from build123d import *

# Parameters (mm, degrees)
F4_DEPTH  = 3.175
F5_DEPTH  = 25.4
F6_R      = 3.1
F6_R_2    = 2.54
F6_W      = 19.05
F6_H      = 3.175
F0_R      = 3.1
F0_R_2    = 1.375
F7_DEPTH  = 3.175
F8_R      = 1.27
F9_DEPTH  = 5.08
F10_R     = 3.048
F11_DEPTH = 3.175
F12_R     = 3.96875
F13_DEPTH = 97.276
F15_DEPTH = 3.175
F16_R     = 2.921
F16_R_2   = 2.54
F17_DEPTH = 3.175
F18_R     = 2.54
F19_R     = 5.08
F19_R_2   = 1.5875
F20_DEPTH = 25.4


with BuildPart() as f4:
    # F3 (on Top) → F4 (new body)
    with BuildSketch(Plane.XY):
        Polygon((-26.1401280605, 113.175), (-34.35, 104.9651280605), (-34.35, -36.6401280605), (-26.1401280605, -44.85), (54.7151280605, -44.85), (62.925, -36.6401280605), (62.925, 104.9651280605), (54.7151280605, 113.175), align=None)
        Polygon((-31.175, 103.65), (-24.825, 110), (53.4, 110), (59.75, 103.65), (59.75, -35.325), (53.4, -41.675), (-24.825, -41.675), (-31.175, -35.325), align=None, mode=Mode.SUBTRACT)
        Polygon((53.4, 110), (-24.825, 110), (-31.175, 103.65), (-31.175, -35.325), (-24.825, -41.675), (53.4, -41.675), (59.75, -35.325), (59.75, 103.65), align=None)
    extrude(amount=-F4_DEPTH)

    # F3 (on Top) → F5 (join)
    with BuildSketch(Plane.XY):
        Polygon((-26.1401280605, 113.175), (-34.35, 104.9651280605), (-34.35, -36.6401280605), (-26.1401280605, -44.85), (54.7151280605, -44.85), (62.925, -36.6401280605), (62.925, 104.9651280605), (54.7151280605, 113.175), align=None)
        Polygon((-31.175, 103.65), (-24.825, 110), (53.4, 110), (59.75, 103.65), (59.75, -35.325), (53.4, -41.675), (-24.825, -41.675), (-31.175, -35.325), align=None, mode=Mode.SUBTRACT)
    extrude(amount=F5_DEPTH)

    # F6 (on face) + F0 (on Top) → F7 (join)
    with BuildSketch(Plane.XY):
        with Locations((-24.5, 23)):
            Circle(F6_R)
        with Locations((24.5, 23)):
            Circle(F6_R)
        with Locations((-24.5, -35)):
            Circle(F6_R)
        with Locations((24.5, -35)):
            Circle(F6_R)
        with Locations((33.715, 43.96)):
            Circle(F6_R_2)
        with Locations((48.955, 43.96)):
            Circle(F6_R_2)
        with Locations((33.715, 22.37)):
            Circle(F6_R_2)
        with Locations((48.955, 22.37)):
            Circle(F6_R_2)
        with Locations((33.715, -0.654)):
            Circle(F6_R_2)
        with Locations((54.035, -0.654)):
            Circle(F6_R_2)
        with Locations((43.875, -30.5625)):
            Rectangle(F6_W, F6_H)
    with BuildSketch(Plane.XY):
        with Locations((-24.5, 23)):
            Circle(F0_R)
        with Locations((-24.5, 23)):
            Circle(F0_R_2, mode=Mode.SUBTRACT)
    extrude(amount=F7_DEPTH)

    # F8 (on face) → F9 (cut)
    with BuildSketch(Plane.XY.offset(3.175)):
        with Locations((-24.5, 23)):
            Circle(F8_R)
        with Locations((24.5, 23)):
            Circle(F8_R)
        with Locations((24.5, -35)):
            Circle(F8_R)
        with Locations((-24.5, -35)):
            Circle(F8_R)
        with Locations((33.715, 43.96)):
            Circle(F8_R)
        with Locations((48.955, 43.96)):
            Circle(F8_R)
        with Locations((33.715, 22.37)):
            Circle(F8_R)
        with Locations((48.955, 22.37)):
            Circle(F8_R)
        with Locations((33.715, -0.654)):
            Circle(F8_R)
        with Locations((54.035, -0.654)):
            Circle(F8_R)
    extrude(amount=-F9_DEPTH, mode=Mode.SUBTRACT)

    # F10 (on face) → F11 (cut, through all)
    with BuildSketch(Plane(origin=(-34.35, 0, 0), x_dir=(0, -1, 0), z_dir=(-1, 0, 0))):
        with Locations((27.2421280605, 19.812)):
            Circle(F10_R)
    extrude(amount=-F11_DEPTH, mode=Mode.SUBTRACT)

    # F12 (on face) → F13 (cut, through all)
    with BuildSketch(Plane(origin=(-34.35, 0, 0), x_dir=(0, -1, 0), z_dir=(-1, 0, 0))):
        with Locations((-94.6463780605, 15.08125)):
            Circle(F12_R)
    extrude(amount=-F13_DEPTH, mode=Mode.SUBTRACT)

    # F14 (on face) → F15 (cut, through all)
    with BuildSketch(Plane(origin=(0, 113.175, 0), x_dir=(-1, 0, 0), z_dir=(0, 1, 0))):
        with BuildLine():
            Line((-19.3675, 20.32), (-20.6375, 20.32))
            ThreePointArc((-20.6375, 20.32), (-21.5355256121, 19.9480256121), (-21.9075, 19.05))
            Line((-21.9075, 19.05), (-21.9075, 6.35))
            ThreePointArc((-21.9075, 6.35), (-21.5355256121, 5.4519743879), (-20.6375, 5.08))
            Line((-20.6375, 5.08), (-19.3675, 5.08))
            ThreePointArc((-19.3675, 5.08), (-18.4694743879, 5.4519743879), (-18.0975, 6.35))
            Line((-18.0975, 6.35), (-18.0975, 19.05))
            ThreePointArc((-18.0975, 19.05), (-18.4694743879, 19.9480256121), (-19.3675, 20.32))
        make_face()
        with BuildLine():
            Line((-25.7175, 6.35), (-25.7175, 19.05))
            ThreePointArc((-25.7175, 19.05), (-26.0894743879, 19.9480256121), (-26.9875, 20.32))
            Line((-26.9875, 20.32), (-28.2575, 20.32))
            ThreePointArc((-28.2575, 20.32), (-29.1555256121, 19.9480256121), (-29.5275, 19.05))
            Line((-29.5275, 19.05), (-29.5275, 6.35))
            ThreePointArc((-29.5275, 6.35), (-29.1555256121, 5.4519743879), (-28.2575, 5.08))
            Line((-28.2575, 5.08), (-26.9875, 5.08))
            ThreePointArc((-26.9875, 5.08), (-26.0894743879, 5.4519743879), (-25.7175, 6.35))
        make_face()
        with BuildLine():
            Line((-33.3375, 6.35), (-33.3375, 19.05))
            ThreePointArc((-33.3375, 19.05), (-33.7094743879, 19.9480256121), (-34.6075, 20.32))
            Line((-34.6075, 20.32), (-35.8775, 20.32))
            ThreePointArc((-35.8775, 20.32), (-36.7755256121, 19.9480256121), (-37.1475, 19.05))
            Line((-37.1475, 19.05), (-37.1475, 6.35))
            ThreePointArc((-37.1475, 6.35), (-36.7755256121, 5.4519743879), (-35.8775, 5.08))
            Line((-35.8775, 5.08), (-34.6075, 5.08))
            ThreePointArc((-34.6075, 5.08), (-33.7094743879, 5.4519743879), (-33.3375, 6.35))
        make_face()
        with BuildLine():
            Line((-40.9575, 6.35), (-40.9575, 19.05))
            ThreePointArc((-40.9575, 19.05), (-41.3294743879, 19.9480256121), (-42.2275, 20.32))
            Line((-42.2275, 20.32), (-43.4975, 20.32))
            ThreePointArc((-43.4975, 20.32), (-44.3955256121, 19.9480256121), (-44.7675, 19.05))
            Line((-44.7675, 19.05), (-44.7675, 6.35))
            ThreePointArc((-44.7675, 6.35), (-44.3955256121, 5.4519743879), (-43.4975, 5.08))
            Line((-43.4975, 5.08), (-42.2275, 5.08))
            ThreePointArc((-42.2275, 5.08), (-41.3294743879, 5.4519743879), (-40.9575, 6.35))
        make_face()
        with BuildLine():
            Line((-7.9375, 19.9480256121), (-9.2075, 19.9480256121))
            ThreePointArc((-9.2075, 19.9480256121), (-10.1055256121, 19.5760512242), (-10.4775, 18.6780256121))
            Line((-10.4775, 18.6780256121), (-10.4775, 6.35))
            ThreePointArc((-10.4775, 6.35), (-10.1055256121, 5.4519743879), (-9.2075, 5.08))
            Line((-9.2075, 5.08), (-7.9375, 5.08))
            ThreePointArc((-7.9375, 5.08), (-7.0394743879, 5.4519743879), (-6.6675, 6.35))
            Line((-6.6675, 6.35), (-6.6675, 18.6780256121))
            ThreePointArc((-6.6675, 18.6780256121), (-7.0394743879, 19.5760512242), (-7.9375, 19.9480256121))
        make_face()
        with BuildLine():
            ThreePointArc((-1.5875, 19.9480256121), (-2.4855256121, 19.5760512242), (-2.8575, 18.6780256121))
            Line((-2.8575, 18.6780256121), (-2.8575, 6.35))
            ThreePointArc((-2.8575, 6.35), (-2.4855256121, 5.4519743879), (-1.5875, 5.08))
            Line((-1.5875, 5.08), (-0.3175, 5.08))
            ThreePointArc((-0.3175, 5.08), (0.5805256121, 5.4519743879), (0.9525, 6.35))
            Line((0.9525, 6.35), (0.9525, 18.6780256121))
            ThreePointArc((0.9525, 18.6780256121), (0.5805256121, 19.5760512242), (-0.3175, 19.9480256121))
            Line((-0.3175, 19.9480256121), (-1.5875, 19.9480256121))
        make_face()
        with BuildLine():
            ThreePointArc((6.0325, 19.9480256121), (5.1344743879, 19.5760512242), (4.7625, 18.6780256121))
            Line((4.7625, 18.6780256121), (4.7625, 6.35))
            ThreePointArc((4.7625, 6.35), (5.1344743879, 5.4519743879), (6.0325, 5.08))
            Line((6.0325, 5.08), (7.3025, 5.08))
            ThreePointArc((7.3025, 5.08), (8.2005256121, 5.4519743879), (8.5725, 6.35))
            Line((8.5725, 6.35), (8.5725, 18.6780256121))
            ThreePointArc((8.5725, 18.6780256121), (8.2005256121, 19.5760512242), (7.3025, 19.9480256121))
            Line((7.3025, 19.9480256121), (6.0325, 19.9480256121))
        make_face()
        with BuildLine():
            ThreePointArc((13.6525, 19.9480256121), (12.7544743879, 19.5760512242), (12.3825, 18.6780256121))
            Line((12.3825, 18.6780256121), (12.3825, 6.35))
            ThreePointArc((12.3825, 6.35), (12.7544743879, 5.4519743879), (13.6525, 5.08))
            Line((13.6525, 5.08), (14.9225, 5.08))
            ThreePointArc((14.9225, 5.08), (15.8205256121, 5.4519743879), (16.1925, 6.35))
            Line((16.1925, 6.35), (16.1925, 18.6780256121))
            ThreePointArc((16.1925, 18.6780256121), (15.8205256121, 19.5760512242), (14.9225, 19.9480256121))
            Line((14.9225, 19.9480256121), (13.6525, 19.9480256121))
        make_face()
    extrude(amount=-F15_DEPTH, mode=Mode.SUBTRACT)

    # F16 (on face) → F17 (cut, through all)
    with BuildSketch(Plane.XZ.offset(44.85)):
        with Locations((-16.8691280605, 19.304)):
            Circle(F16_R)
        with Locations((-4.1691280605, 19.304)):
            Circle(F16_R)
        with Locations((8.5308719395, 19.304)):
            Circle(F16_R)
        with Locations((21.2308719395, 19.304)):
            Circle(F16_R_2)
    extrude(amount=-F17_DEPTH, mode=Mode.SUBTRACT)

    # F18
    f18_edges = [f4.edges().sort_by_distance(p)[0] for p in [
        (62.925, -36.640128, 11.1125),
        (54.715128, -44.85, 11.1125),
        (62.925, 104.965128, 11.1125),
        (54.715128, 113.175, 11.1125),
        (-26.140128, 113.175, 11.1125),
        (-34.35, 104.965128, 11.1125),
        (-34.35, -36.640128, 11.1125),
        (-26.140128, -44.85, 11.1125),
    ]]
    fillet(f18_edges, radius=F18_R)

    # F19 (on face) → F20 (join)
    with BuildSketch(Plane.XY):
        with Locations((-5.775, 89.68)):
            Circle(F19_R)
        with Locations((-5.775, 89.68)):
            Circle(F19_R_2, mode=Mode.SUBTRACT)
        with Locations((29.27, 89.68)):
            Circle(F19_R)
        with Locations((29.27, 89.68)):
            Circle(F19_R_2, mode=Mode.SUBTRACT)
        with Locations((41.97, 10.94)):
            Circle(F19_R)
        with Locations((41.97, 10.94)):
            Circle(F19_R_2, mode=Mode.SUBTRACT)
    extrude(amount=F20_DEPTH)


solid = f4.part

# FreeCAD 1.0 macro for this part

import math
import FreeCAD as App
import Part
import Sketcher
from FreeCAD import Vector
Q = App.Units.Quantity


def edges_at(feature, points):
    """Names of the edges that pass closest to the given points."""
    edges = feature.Shape.Edges
    near = lambda p: min(range(len(edges)), key=lambda i: edges[i].distToShape(Part.Vertex(*p))[0])
    return sorted({f"Edge{near(p) + 1}" for p in points})

doc = App.newDocument("Part")
body = doc.addObject("PartDesign::Body", "Body")

# Sketch on XY plane
sketch1 = body.newObject("Sketcher::SketchObject", "Sketch")
sketch1.AttachmentSupport = (doc.getObject("XY_Plane"), [""])
sketch1.MapMode = "FlatFace"
sketch1.addGeometry([
    Part.LineSegment(Vector(-26, 113, 0), Vector(-34, 105, 0)),  # 0
    Part.LineSegment(Vector(-34, 105, 0), Vector(-34, -37, 0)),  # 1
    Part.LineSegment(Vector(-34, -37, 0), Vector(-26, -45, 0)),  # 2
    Part.LineSegment(Vector(-26, -45, 0), Vector(55, -45, 0)),  # 3
    Part.LineSegment(Vector(55, -45, 0), Vector(63, -37, 0)),  # 4
    Part.LineSegment(Vector(63, -37, 0), Vector(63, 105, 0)),  # 5
    Part.LineSegment(Vector(63, 105, 0), Vector(55, 113, 0)),  # 6
    Part.LineSegment(Vector(55, 113, 0), Vector(-26, 113, 0)),  # 7
], False)
sketch1.addConstraint([
    Sketcher.Constraint("Coincident", 0, 2, 1, 1),
    Sketcher.Constraint("Coincident", 1, 2, 2, 1),
    Sketcher.Constraint("Coincident", 2, 2, 3, 1),
    Sketcher.Constraint("Coincident", 3, 2, 4, 1),
    Sketcher.Constraint("Coincident", 4, 2, 5, 1),
    Sketcher.Constraint("Coincident", 5, 2, 6, 1),
    Sketcher.Constraint("Coincident", 6, 2, 7, 1),
    Sketcher.Constraint("Coincident", 7, 2, 0, 1),
    Sketcher.Constraint("Vertical", 1),
    Sketcher.Constraint("Horizontal", 3),
    Sketcher.Constraint("Vertical", 5),
    Sketcher.Constraint("Horizontal", 7),
    Sketcher.Constraint("Perpendicular", 0, 2),
    Sketcher.Constraint("Perpendicular", 2, 4),
    Sketcher.Constraint("Perpendicular", 4, 6),
    Sketcher.Constraint("Horizontal", 1, 2, 4, 2),
    Sketcher.Constraint("Horizontal", 0, 2, 5, 2),
    Sketcher.Constraint("Vertical", 3, 2, 6, 2),
    Sketcher.Constraint("Vertical", 2, 2, 7, 2),
    Sketcher.Constraint("DistanceX", 0, 2, -1, 1, Q("34.35 mm")),
    Sketcher.Constraint("DistanceY", 2, 2, -1, 1, Q("44.85 mm")),
    Sketcher.Constraint("DistanceX", -1, 1, 4, 2, Q("62.925 mm")),
    Sketcher.Constraint("DistanceY", -1, 1, 6, 2, Q("113.175 mm")),
    Sketcher.Constraint("DistanceX", 3, 1, 3, 2, Q("80.855256 mm")),
])
pad1 = body.newObject("PartDesign::Pad", "Pad")
pad1.Profile = sketch1
pad1.Length = Q("0.125 in")
pad1.Reversed = True

# Sketch on XY plane
sketch2 = body.newObject("Sketcher::SketchObject", "Sketch001")
sketch2.AttachmentSupport = (doc.getObject("XY_Plane"), [""])
sketch2.MapMode = "FlatFace"
sketch2.addGeometry([
    Part.LineSegment(Vector(-26, 113, 0), Vector(-34, 105, 0)),  # 0
    Part.LineSegment(Vector(-34, 105, 0), Vector(-34, -37, 0)),  # 1
    Part.LineSegment(Vector(-34, -37, 0), Vector(-26, -45, 0)),  # 2
    Part.LineSegment(Vector(-26, -45, 0), Vector(55, -45, 0)),  # 3
    Part.LineSegment(Vector(55, -45, 0), Vector(63, -37, 0)),  # 4
    Part.LineSegment(Vector(63, -37, 0), Vector(63, 105, 0)),  # 5
    Part.LineSegment(Vector(63, 105, 0), Vector(55, 113, 0)),  # 6
    Part.LineSegment(Vector(55, 113, 0), Vector(-26, 113, 0)),  # 7
    Part.LineSegment(Vector(-31, -35, 0), Vector(-31, 104, 0)),  # 8
    Part.LineSegment(Vector(-31, 104, 0), Vector(-25, 110, 0)),  # 9
    Part.LineSegment(Vector(-25, 110, 0), Vector(53, 110, 0)),  # 10
    Part.LineSegment(Vector(53, 110, 0), Vector(60, 104, 0)),  # 11
    Part.LineSegment(Vector(60, 104, 0), Vector(60, -35, 0)),  # 12
    Part.LineSegment(Vector(60, -35, 0), Vector(53, -42, 0)),  # 13
    Part.LineSegment(Vector(53, -42, 0), Vector(-25, -42, 0)),  # 14
    Part.LineSegment(Vector(-25, -42, 0), Vector(-31, -35, 0)),  # 15
], False)
sketch2.addConstraint([
    Sketcher.Constraint("Coincident", 0, 2, 1, 1),
    Sketcher.Constraint("Coincident", 1, 2, 2, 1),
    Sketcher.Constraint("Coincident", 2, 2, 3, 1),
    Sketcher.Constraint("Coincident", 3, 2, 4, 1),
    Sketcher.Constraint("Coincident", 4, 2, 5, 1),
    Sketcher.Constraint("Coincident", 5, 2, 6, 1),
    Sketcher.Constraint("Coincident", 6, 2, 7, 1),
    Sketcher.Constraint("Coincident", 7, 2, 0, 1),
    Sketcher.Constraint("Coincident", 8, 2, 9, 1),
    Sketcher.Constraint("Coincident", 9, 2, 10, 1),
    Sketcher.Constraint("Coincident", 10, 2, 11, 1),
    Sketcher.Constraint("Coincident", 11, 2, 12, 1),
    Sketcher.Constraint("Coincident", 12, 2, 13, 1),
    Sketcher.Constraint("Coincident", 13, 2, 14, 1),
    Sketcher.Constraint("Coincident", 14, 2, 15, 1),
    Sketcher.Constraint("Coincident", 15, 2, 8, 1),
    Sketcher.Constraint("Vertical", 1),
    Sketcher.Constraint("Horizontal", 3),
    Sketcher.Constraint("Vertical", 5),
    Sketcher.Constraint("Horizontal", 7),
    Sketcher.Constraint("Vertical", 8),
    Sketcher.Constraint("Horizontal", 10),
    Sketcher.Constraint("Vertical", 12),
    Sketcher.Constraint("Horizontal", 14),
    Sketcher.Constraint("Perpendicular", 0, 2),
    Sketcher.Constraint("Perpendicular", 2, 4),
    Sketcher.Constraint("Perpendicular", 4, 6),
    Sketcher.Constraint("Perpendicular", 6, 9),
    Sketcher.Constraint("Perpendicular", 9, 11),
    Sketcher.Constraint("Perpendicular", 11, 13),
    Sketcher.Constraint("Perpendicular", 13, 15),
    Sketcher.Constraint("Horizontal", 1, 2, 4, 2),
    Sketcher.Constraint("Horizontal", 0, 2, 5, 2),
    Sketcher.Constraint("Horizontal", 8, 2, 11, 2),
    Sketcher.Constraint("Horizontal", 12, 2, 15, 2),
    Sketcher.Constraint("Vertical", 3, 2, 6, 2),
    Sketcher.Constraint("Vertical", 2, 2, 7, 2),
    Sketcher.Constraint("Vertical", 10, 2, 13, 2),
    Sketcher.Constraint("DistanceX", 8, 2, 9, 2, Q("0.25 in")),
    Sketcher.Constraint("DistanceX", 0, 2, 8, 2, Q("0.125 in")),
    Sketcher.Constraint("DistanceY", 8, 2, 7, 2, Q("0.375 in")),
    Sketcher.Constraint("DistanceX", 10, 2, 5, 2, Q("0.375 in")),
    Sketcher.Constraint("DistanceY", 3, 2, 12, 2, Q("0.375 in")),
    Sketcher.Constraint("DistanceX", 10, 1, 10, 2, Q("78.225 mm")),
    Sketcher.Constraint("DistanceY", 8, 1, 8, 2, Q("138.975 mm")),
    Sketcher.Constraint("DistanceX", 0, 2, -1, 1, Q("34.35 mm")),
    Sketcher.Constraint("DistanceY", 2, 2, -1, 1, Q("44.85 mm")),
    Sketcher.Constraint("DistanceX", 3, 1, 3, 2, Q("80.855256 mm")),
])
pad2 = body.newObject("PartDesign::Pad", "Pad001")
pad2.Profile = sketch2
pad2.Length = Q("1 in")

# Sketch on XY plane
sketch3 = body.newObject("Sketcher::SketchObject", "Sketch002")
sketch3.AttachmentSupport = (doc.getObject("XY_Plane"), [""])
sketch3.MapMode = "FlatFace"
sketch3.addGeometry([
    Part.Circle(Vector(-24.5, 23, 0), Vector(0, 0, 1), 3.1),  # 0
    Part.Circle(Vector(24.5, 23, 0), Vector(0, 0, 1), 3.1),  # 1
    Part.Circle(Vector(-24.5, -35, 0), Vector(0, 0, 1), 3.1),  # 2
    Part.Circle(Vector(24.5, -35, 0), Vector(0, 0, 1), 3.1),  # 3
    Part.Circle(Vector(33.7, 44, 0), Vector(0, 0, 1), 2.5),  # 4
    Part.Circle(Vector(49, 44, 0), Vector(0, 0, 1), 2.5),  # 5
    Part.Circle(Vector(33.7, 22.4, 0), Vector(0, 0, 1), 2.5),  # 6
    Part.Circle(Vector(49, 22.4, 0), Vector(0, 0, 1), 2.5),  # 7
    Part.Circle(Vector(33.7, -0.7, 0), Vector(0, 0, 1), 2.5),  # 8
    Part.Circle(Vector(54, -0.7, 0), Vector(0, 0, 1), 2.5),  # 9
    Part.LineSegment(Vector(34.4, -29, 0), Vector(34.4, -32.1, 0)),  # 10
    Part.LineSegment(Vector(34.4, -32.1, 0), Vector(53.4, -32.1, 0)),  # 11
    Part.LineSegment(Vector(53.4, -32.1, 0), Vector(53.4, -29, 0)),  # 12
    Part.LineSegment(Vector(53.4, -29, 0), Vector(34.4, -29, 0)),  # 13
], False)
sketch3.addConstraint([
    Sketcher.Constraint("Coincident", 10, 2, 11, 1),
    Sketcher.Constraint("Coincident", 11, 2, 12, 1),
    Sketcher.Constraint("Coincident", 12, 2, 13, 1),
    Sketcher.Constraint("Coincident", 13, 2, 10, 1),
    Sketcher.Constraint("Vertical", 10),
    Sketcher.Constraint("Horizontal", 11),
    Sketcher.Constraint("Vertical", 12),
    Sketcher.Constraint("Horizontal", 13),
    Sketcher.Constraint("Equal", 0, 1),
    Sketcher.Constraint("Equal", 1, 2),
    Sketcher.Constraint("Equal", 2, 3),
    Sketcher.Constraint("Equal", 4, 5),
    Sketcher.Constraint("Equal", 5, 6),
    Sketcher.Constraint("Equal", 6, 7),
    Sketcher.Constraint("Equal", 7, 8),
    Sketcher.Constraint("Equal", 8, 9),
    Sketcher.Constraint("Symmetric", 0, 3, 1, 3, -2),
    Sketcher.Constraint("Symmetric", 2, 3, 3, 3, -2),
    Sketcher.Constraint("Horizontal", 4, 3, 5, 3),
    Sketcher.Constraint("Horizontal", 6, 3, 7, 3),
    Sketcher.Constraint("Horizontal", 8, 3, 9, 3),
    Sketcher.Constraint("Vertical", 0, 3, 2, 3),
    Sketcher.Constraint("Vertical", 4, 3, 6, 3),
    Sketcher.Constraint("Vertical", 5, 3, 7, 3),
    Sketcher.Constraint("Vertical", 6, 3, 8, 3),
    Sketcher.Constraint("Diameter", 4, Q("0.2 in")),
    Sketcher.Constraint("DistanceX", 11, 1, 11, 2, Q("0.75 in")),
    Sketcher.Constraint("DistanceX", 4, 3, 5, 3, Q("0.6 in")),
    Sketcher.Constraint("DistanceX", 8, 3, 9, 3, Q("0.8 in")),
    Sketcher.Constraint("Diameter", 0, Q("6.2 mm")),
    Sketcher.Constraint("DistanceY", 10, 2, 10, 1, Q("0.125 in")),
    Sketcher.Constraint("DistanceY", 6, 3, 4, 3, Q("0.85 in")),
    Sketcher.Constraint("DistanceY", 10, 2, 8, 3, Q("1.24 in")),
    Sketcher.Constraint("DistanceX", 8, 3, 10, 2, Q("0.025 in")),
    Sketcher.Constraint("DistanceX", 0, 3, -1, 1, Q("24.5 mm")),
    Sketcher.Constraint("DistanceY", -1, 1, 0, 3, Q("23 mm")),
    Sketcher.Constraint("DistanceY", 2, 3, -1, 1, Q("35 mm")),
    Sketcher.Constraint("DistanceX", -1, 1, 4, 3, Q("33.715 mm")),
    Sketcher.Constraint("DistanceY", -1, 1, 4, 3, Q("43.96 mm")),
    Sketcher.Constraint("DistanceY", 8, 3, -1, 1, Q("0.654 mm")),
])
pad3 = body.newObject("PartDesign::Pad", "Pad002")
pad3.Profile = sketch3
pad3.Length = Q("0.125 in")

# Sketch on XY plane
sketch4 = body.newObject("Sketcher::SketchObject", "Sketch003")
sketch4.AttachmentSupport = (doc.getObject("XY_Plane"), [""])
sketch4.MapMode = "FlatFace"
sketch4.AttachmentOffset = App.Placement(Vector(0, 0, 0.125 * 25.4), App.Rotation())
sketch4.addGeometry([
    Part.Circle(Vector(-24.5, 23, 0), Vector(0, 0, 1), 1.3),  # 0
    Part.Circle(Vector(24.5, 23, 0), Vector(0, 0, 1), 1.3),  # 1
    Part.Circle(Vector(24.5, -35, 0), Vector(0, 0, 1), 1.3),  # 2
    Part.Circle(Vector(-24.5, -35, 0), Vector(0, 0, 1), 1.3),  # 3
    Part.Circle(Vector(33.7, 44, 0), Vector(0, 0, 1), 1.3),  # 4
    Part.Circle(Vector(49, 44, 0), Vector(0, 0, 1), 1.3),  # 5
    Part.Circle(Vector(33.7, 22.4, 0), Vector(0, 0, 1), 1.3),  # 6
    Part.Circle(Vector(49, 22.4, 0), Vector(0, 0, 1), 1.3),  # 7
    Part.Circle(Vector(33.7, -0.7, 0), Vector(0, 0, 1), 1.3),  # 8
    Part.Circle(Vector(54, -0.7, 0), Vector(0, 0, 1), 1.3),  # 9
], False)
sketch4.addConstraint([
    Sketcher.Constraint("Equal", 0, 1),
    Sketcher.Constraint("Equal", 1, 2),
    Sketcher.Constraint("Equal", 2, 3),
    Sketcher.Constraint("Equal", 3, 4),
    Sketcher.Constraint("Equal", 4, 5),
    Sketcher.Constraint("Equal", 5, 6),
    Sketcher.Constraint("Equal", 6, 7),
    Sketcher.Constraint("Equal", 7, 8),
    Sketcher.Constraint("Equal", 8, 9),
    Sketcher.Constraint("Symmetric", 0, 3, 1, 3, -2),
    Sketcher.Constraint("Symmetric", 2, 3, 3, 3, -2),
    Sketcher.Constraint("Horizontal", 4, 3, 5, 3),
    Sketcher.Constraint("Horizontal", 6, 3, 7, 3),
    Sketcher.Constraint("Horizontal", 8, 3, 9, 3),
    Sketcher.Constraint("Vertical", 1, 3, 2, 3),
    Sketcher.Constraint("Vertical", 4, 3, 6, 3),
    Sketcher.Constraint("Vertical", 5, 3, 7, 3),
    Sketcher.Constraint("Vertical", 6, 3, 8, 3),
    Sketcher.Constraint("Diameter", 0, Q("0.1 in")),
    Sketcher.Constraint("DistanceX", 4, 3, 5, 3, Q("0.6 in")),
    Sketcher.Constraint("DistanceX", 8, 3, 9, 3, Q("0.8 in")),
    Sketcher.Constraint("DistanceY", 6, 3, 4, 3, Q("0.85 in")),
    Sketcher.Constraint("DistanceX", 0, 3, -1, 1, Q("24.5 mm")),
    Sketcher.Constraint("DistanceY", -1, 1, 0, 3, Q("23 mm")),
    Sketcher.Constraint("DistanceY", 2, 3, -1, 1, Q("35 mm")),
    Sketcher.Constraint("DistanceX", -1, 1, 4, 3, Q("33.715 mm")),
    Sketcher.Constraint("DistanceY", -1, 1, 4, 3, Q("43.96 mm")),
    Sketcher.Constraint("DistanceY", 8, 3, -1, 1, Q("0.654 mm")),
])
pocket1 = body.newObject("PartDesign::Pocket", "Pocket")
pocket1.Profile = sketch4
pocket1.Length = Q("0.2 in")

# Sketch on YZ plane
sketch5 = body.newObject("Sketcher::SketchObject", "Sketch004")
sketch5.AttachmentSupport = (doc.getObject("YZ_Plane"), [""])
sketch5.MapMode = "FlatFace"
sketch5.AttachmentOffset = App.Placement(Vector(0, 0, -34.35), App.Rotation())
sketch5.addGeometry(Part.Circle(Vector(-27.2, 19.8, 0), Vector(0, 0, 1), 3), False)
sketch5.addConstraint([
    Sketcher.Constraint("Diameter", 0, Q("0.24 in")),
    Sketcher.Constraint("DistanceY", -1, 1, 0, 3, Q("0.78 in")),
    Sketcher.Constraint("DistanceX", 0, 3, -1, 1, Q("27.242128 mm")),
])
pocket2 = body.newObject("PartDesign::Pocket", "Pocket001")
pocket2.Profile = sketch5
pocket2.Length = Q("0.125 in")
pocket2.Reversed = True

# Sketch on YZ plane
sketch6 = body.newObject("Sketcher::SketchObject", "Sketch005")
sketch6.AttachmentSupport = (doc.getObject("YZ_Plane"), [""])
sketch6.MapMode = "FlatFace"
sketch6.AttachmentOffset = App.Placement(Vector(0, 0, -34.35), App.Rotation())
sketch6.addGeometry(Part.Circle(Vector(94.6, 15.1, 0), Vector(0, 0, 1), 4), False)
sketch6.addConstraint([
    Sketcher.Constraint("Diameter", 0, Q("0.3125 in")),
    Sketcher.Constraint("DistanceY", -1, 1, 0, 3, Q("0.59375 in")),
    Sketcher.Constraint("DistanceX", -1, 1, 0, 3, Q("94.646378 mm")),
])
pocket3 = body.newObject("PartDesign::Pocket", "Pocket002")
pocket3.Profile = sketch6
pocket3.Type = "ThroughAll"
pocket3.Reversed = True

# Sketch on XZ plane
sketch7 = body.newObject("Sketcher::SketchObject", "Sketch006")
sketch7.AttachmentSupport = (doc.getObject("XZ_Plane"), [""])
sketch7.MapMode = "FlatFace"
sketch7.AttachmentOffset = App.Placement(Vector(0, 0, -113.175), App.Rotation())
sketch7.addGeometry([
    Part.LineSegment(Vector(19.4, 20.3, 0), Vector(20.6, 20.3, 0)),  # 0
    Part.ArcOfCircle(Part.Circle(Vector(20.6, 19.1, 0), Vector(0, 0, 1), 1.3), math.radians(0), math.radians(90)),  # 1
    Part.LineSegment(Vector(21.9, 19.1, 0), Vector(21.9, 6.3, 0)),  # 2
    Part.ArcOfCircle(Part.Circle(Vector(20.6, 6.3, 0), Vector(0, 0, 1), 1.3), math.radians(-90), math.radians(0)),  # 3
    Part.LineSegment(Vector(20.6, 5.1, 0), Vector(19.4, 5.1, 0)),  # 4
    Part.ArcOfCircle(Part.Circle(Vector(19.4, 6.3, 0), Vector(0, 0, 1), 1.3), math.radians(180), math.radians(270)),  # 5
    Part.LineSegment(Vector(18.1, 6.3, 0), Vector(18.1, 19.1, 0)),  # 6
    Part.ArcOfCircle(Part.Circle(Vector(19.4, 19.1, 0), Vector(0, 0, 1), 1.3), math.radians(90), math.radians(180)),  # 7
    Part.LineSegment(Vector(25.7, 6.3, 0), Vector(25.7, 19.1, 0)),  # 8
    Part.ArcOfCircle(Part.Circle(Vector(27, 19.1, 0), Vector(0, 0, 1), 1.3), math.radians(90), math.radians(180)),  # 9
    Part.LineSegment(Vector(27, 20.3, 0), Vector(28.3, 20.3, 0)),  # 10
    Part.ArcOfCircle(Part.Circle(Vector(28.3, 19.1, 0), Vector(0, 0, 1), 1.3), math.radians(0), math.radians(90)),  # 11
    Part.LineSegment(Vector(29.5, 19.1, 0), Vector(29.5, 6.3, 0)),  # 12
    Part.ArcOfCircle(Part.Circle(Vector(28.3, 6.3, 0), Vector(0, 0, 1), 1.3), math.radians(-90), math.radians(0)),  # 13
    Part.LineSegment(Vector(28.3, 5.1, 0), Vector(27, 5.1, 0)),  # 14
    Part.ArcOfCircle(Part.Circle(Vector(27, 6.3, 0), Vector(0, 0, 1), 1.3), math.radians(180), math.radians(270)),  # 15
    Part.LineSegment(Vector(33.3, 6.3, 0), Vector(33.3, 19.1, 0)),  # 16
    Part.ArcOfCircle(Part.Circle(Vector(34.6, 19.1, 0), Vector(0, 0, 1), 1.3), math.radians(90), math.radians(180)),  # 17
    Part.LineSegment(Vector(34.6, 20.3, 0), Vector(35.9, 20.3, 0)),  # 18
    Part.ArcOfCircle(Part.Circle(Vector(35.9, 19.1, 0), Vector(0, 0, 1), 1.3), math.radians(0), math.radians(90)),  # 19
    Part.LineSegment(Vector(37.1, 19.1, 0), Vector(37.1, 6.3, 0)),  # 20
    Part.ArcOfCircle(Part.Circle(Vector(35.9, 6.3, 0), Vector(0, 0, 1), 1.3), math.radians(-90), math.radians(0)),  # 21
    Part.LineSegment(Vector(35.9, 5.1, 0), Vector(34.6, 5.1, 0)),  # 22
    Part.ArcOfCircle(Part.Circle(Vector(34.6, 6.3, 0), Vector(0, 0, 1), 1.3), math.radians(180), math.radians(270)),  # 23
    Part.LineSegment(Vector(41, 6.3, 0), Vector(41, 19.1, 0)),  # 24
    Part.ArcOfCircle(Part.Circle(Vector(42.2, 19.1, 0), Vector(0, 0, 1), 1.3), math.radians(90), math.radians(180)),  # 25
    Part.LineSegment(Vector(42.2, 20.3, 0), Vector(43.5, 20.3, 0)),  # 26
    Part.ArcOfCircle(Part.Circle(Vector(43.5, 19.1, 0), Vector(0, 0, 1), 1.3), math.radians(0), math.radians(90)),  # 27
    Part.LineSegment(Vector(44.8, 19.1, 0), Vector(44.8, 6.3, 0)),  # 28
    Part.ArcOfCircle(Part.Circle(Vector(43.5, 6.3, 0), Vector(0, 0, 1), 1.3), math.radians(-90), math.radians(0)),  # 29
    Part.LineSegment(Vector(43.5, 5.1, 0), Vector(42.2, 5.1, 0)),  # 30
    Part.ArcOfCircle(Part.Circle(Vector(42.2, 6.3, 0), Vector(0, 0, 1), 1.3), math.radians(180), math.radians(270)),  # 31
    Part.LineSegment(Vector(7.9, 19.9, 0), Vector(9.2, 19.9, 0)),  # 32
    Part.ArcOfCircle(Part.Circle(Vector(9.2, 18.7, 0), Vector(0, 0, 1), 1.3), math.radians(0), math.radians(90)),  # 33
    Part.LineSegment(Vector(10.5, 18.7, 0), Vector(10.5, 6.3, 0)),  # 34
    Part.ArcOfCircle(Part.Circle(Vector(9.2, 6.3, 0), Vector(0, 0, 1), 1.3), math.radians(-90), math.radians(0)),  # 35
    Part.LineSegment(Vector(9.2, 5.1, 0), Vector(7.9, 5.1, 0)),  # 36
    Part.ArcOfCircle(Part.Circle(Vector(7.9, 6.3, 0), Vector(0, 0, 1), 1.3), math.radians(180), math.radians(270)),  # 37
    Part.LineSegment(Vector(6.7, 6.3, 0), Vector(6.7, 18.7, 0)),  # 38
    Part.ArcOfCircle(Part.Circle(Vector(7.9, 18.7, 0), Vector(0, 0, 1), 1.3), math.radians(90), math.radians(180)),  # 39
    Part.ArcOfCircle(Part.Circle(Vector(1.6, 18.7, 0), Vector(0, 0, 1), 1.3), math.radians(0), math.radians(90)),  # 40
    Part.LineSegment(Vector(2.9, 18.7, 0), Vector(2.9, 6.3, 0)),  # 41
    Part.ArcOfCircle(Part.Circle(Vector(1.6, 6.3, 0), Vector(0, 0, 1), 1.3), math.radians(-90), math.radians(0)),  # 42
    Part.LineSegment(Vector(1.6, 5.1, 0), Vector(0.3, 5.1, 0)),  # 43
    Part.ArcOfCircle(Part.Circle(Vector(0.3, 6.3, 0), Vector(0, 0, 1), 1.3), math.radians(180), math.radians(270)),  # 44
    Part.LineSegment(Vector(-1, 6.3, 0), Vector(-1, 18.7, 0)),  # 45
    Part.ArcOfCircle(Part.Circle(Vector(0.3, 18.7, 0), Vector(0, 0, 1), 1.3), math.radians(90), math.radians(180)),  # 46
    Part.LineSegment(Vector(0.3, 19.9, 0), Vector(1.6, 19.9, 0)),  # 47
    Part.ArcOfCircle(Part.Circle(Vector(-6, 18.7, 0), Vector(0, 0, 1), 1.3), math.radians(0), math.radians(90)),  # 48
    Part.LineSegment(Vector(-4.8, 18.7, 0), Vector(-4.8, 6.3, 0)),  # 49
    Part.ArcOfCircle(Part.Circle(Vector(-6, 6.3, 0), Vector(0, 0, 1), 1.3), math.radians(-90), math.radians(0)),  # 50
    Part.LineSegment(Vector(-6, 5.1, 0), Vector(-7.3, 5.1, 0)),  # 51
    Part.ArcOfCircle(Part.Circle(Vector(-7.3, 6.3, 0), Vector(0, 0, 1), 1.3), math.radians(180), math.radians(270)),  # 52
    Part.LineSegment(Vector(-8.6, 6.3, 0), Vector(-8.6, 18.7, 0)),  # 53
    Part.ArcOfCircle(Part.Circle(Vector(-7.3, 18.7, 0), Vector(0, 0, 1), 1.3), math.radians(90), math.radians(180)),  # 54
    Part.LineSegment(Vector(-7.3, 19.9, 0), Vector(-6, 19.9, 0)),  # 55
    Part.ArcOfCircle(Part.Circle(Vector(-13.7, 18.7, 0), Vector(0, 0, 1), 1.3), math.radians(0), math.radians(90)),  # 56
    Part.LineSegment(Vector(-12.4, 18.7, 0), Vector(-12.4, 6.3, 0)),  # 57
    Part.ArcOfCircle(Part.Circle(Vector(-13.7, 6.3, 0), Vector(0, 0, 1), 1.3), math.radians(-90), math.radians(0)),  # 58
    Part.LineSegment(Vector(-13.7, 5.1, 0), Vector(-14.9, 5.1, 0)),  # 59
    Part.ArcOfCircle(Part.Circle(Vector(-14.9, 6.3, 0), Vector(0, 0, 1), 1.3), math.radians(180), math.radians(270)),  # 60
    Part.LineSegment(Vector(-16.2, 6.3, 0), Vector(-16.2, 18.7, 0)),  # 61
    Part.ArcOfCircle(Part.Circle(Vector(-14.9, 18.7, 0), Vector(0, 0, 1), 1.3), math.radians(90), math.radians(180)),  # 62
    Part.LineSegment(Vector(-14.9, 19.9, 0), Vector(-13.7, 19.9, 0)),  # 63
], False)
sketch7.addConstraint([
    Sketcher.Constraint("Tangent", 0, 2, 1, 2),
    Sketcher.Constraint("Tangent", 1, 1, 2, 1),
    Sketcher.Constraint("Tangent", 2, 2, 3, 2),
    Sketcher.Constraint("Tangent", 3, 1, 4, 1),
    Sketcher.Constraint("Tangent", 4, 2, 5, 2),
    Sketcher.Constraint("Tangent", 5, 1, 6, 1),
    Sketcher.Constraint("Tangent", 6, 2, 7, 2),
    Sketcher.Constraint("Tangent", 7, 1, 0, 1),
    Sketcher.Constraint("Tangent", 8, 2, 9, 2),
    Sketcher.Constraint("Tangent", 9, 1, 10, 1),
    Sketcher.Constraint("Tangent", 10, 2, 11, 2),
    Sketcher.Constraint("Tangent", 11, 1, 12, 1),
    Sketcher.Constraint("Tangent", 12, 2, 13, 2),
    Sketcher.Constraint("Tangent", 13, 1, 14, 1),
    Sketcher.Constraint("Tangent", 14, 2, 15, 2),
    Sketcher.Constraint("Tangent", 15, 1, 8, 1),
    Sketcher.Constraint("Tangent", 16, 2, 17, 2),
    Sketcher.Constraint("Tangent", 17, 1, 18, 1),
    Sketcher.Constraint("Tangent", 18, 2, 19, 2),
    Sketcher.Constraint("Tangent", 19, 1, 20, 1),
    Sketcher.Constraint("Tangent", 20, 2, 21, 2),
    Sketcher.Constraint("Tangent", 21, 1, 22, 1),
    Sketcher.Constraint("Tangent", 22, 2, 23, 2),
    Sketcher.Constraint("Tangent", 23, 1, 16, 1),
    Sketcher.Constraint("Tangent", 24, 2, 25, 2),
    Sketcher.Constraint("Tangent", 25, 1, 26, 1),
    Sketcher.Constraint("Tangent", 26, 2, 27, 2),
    Sketcher.Constraint("Tangent", 27, 1, 28, 1),
    Sketcher.Constraint("Tangent", 28, 2, 29, 2),
    Sketcher.Constraint("Tangent", 29, 1, 30, 1),
    Sketcher.Constraint("Tangent", 30, 2, 31, 2),
    Sketcher.Constraint("Tangent", 31, 1, 24, 1),
    Sketcher.Constraint("Tangent", 32, 2, 33, 2),
    Sketcher.Constraint("Tangent", 33, 1, 34, 1),
    Sketcher.Constraint("Tangent", 34, 2, 35, 2),
    Sketcher.Constraint("Tangent", 35, 1, 36, 1),
    Sketcher.Constraint("Tangent", 36, 2, 37, 2),
    Sketcher.Constraint("Tangent", 37, 1, 38, 1),
    Sketcher.Constraint("Tangent", 38, 2, 39, 2),
    Sketcher.Constraint("Tangent", 39, 1, 32, 1),
    Sketcher.Constraint("Tangent", 40, 1, 41, 1),
    Sketcher.Constraint("Tangent", 41, 2, 42, 2),
    Sketcher.Constraint("Tangent", 42, 1, 43, 1),
    Sketcher.Constraint("Tangent", 43, 2, 44, 2),
    Sketcher.Constraint("Tangent", 44, 1, 45, 1),
    Sketcher.Constraint("Tangent", 45, 2, 46, 2),
    Sketcher.Constraint("Tangent", 46, 1, 47, 1),
    Sketcher.Constraint("Tangent", 47, 2, 40, 2),
    Sketcher.Constraint("Tangent", 48, 1, 49, 1),
    Sketcher.Constraint("Tangent", 49, 2, 50, 2),
    Sketcher.Constraint("Tangent", 50, 1, 51, 1),
    Sketcher.Constraint("Tangent", 51, 2, 52, 2),
    Sketcher.Constraint("Tangent", 52, 1, 53, 1),
    Sketcher.Constraint("Tangent", 53, 2, 54, 2),
    Sketcher.Constraint("Tangent", 54, 1, 55, 1),
    Sketcher.Constraint("Tangent", 55, 2, 48, 2),
    Sketcher.Constraint("Tangent", 56, 1, 57, 1),
    Sketcher.Constraint("Tangent", 57, 2, 58, 2),
    Sketcher.Constraint("Tangent", 58, 1, 59, 1),
    Sketcher.Constraint("Tangent", 59, 2, 60, 2),
    Sketcher.Constraint("Tangent", 60, 1, 61, 1),
    Sketcher.Constraint("Tangent", 61, 2, 62, 2),
    Sketcher.Constraint("Tangent", 62, 1, 63, 1),
    Sketcher.Constraint("Tangent", 63, 2, 56, 2),
    Sketcher.Constraint("Horizontal", 0),
    Sketcher.Constraint("Vertical", 2),
    Sketcher.Constraint("Horizontal", 4),
    Sketcher.Constraint("Vertical", 6),
    Sketcher.Constraint("Vertical", 8),
    Sketcher.Constraint("Horizontal", 10),
    Sketcher.Constraint("Vertical", 12),
    Sketcher.Constraint("Horizontal", 14),
    Sketcher.Constraint("Vertical", 16),
    Sketcher.Constraint("Horizontal", 18),
    Sketcher.Constraint("Vertical", 20),
    Sketcher.Constraint("Horizontal", 22),
    Sketcher.Constraint("Vertical", 24),
    Sketcher.Constraint("Horizontal", 26),
    Sketcher.Constraint("Vertical", 28),
    Sketcher.Constraint("Horizontal", 30),
    Sketcher.Constraint("Horizontal", 32),
    Sketcher.Constraint("Vertical", 34),
    Sketcher.Constraint("Horizontal", 36),
    Sketcher.Constraint("Vertical", 38),
    Sketcher.Constraint("Vertical", 41),
    Sketcher.Constraint("Horizontal", 43),
    Sketcher.Constraint("Vertical", 45),
    Sketcher.Constraint("Horizontal", 47),
    Sketcher.Constraint("Vertical", 49),
    Sketcher.Constraint("Horizontal", 51),
    Sketcher.Constraint("Vertical", 53),
    Sketcher.Constraint("Horizontal", 55),
    Sketcher.Constraint("Vertical", 57),
    Sketcher.Constraint("Horizontal", 59),
    Sketcher.Constraint("Vertical", 61),
    Sketcher.Constraint("Horizontal", 63),
    Sketcher.Constraint("Equal", 1, 3),
    Sketcher.Constraint("Equal", 3, 5),
    Sketcher.Constraint("Equal", 5, 7),
    Sketcher.Constraint("Equal", 7, 9),
    Sketcher.Constraint("Equal", 9, 11),
    Sketcher.Constraint("Equal", 11, 13),
    Sketcher.Constraint("Equal", 13, 15),
    Sketcher.Constraint("Equal", 15, 17),
    Sketcher.Constraint("Equal", 17, 19),
    Sketcher.Constraint("Equal", 19, 21),
    Sketcher.Constraint("Equal", 21, 23),
    Sketcher.Constraint("Equal", 23, 25),
    Sketcher.Constraint("Equal", 25, 27),
    Sketcher.Constraint("Equal", 27, 29),
    Sketcher.Constraint("Equal", 29, 31),
    Sketcher.Constraint("Equal", 31, 33),
    Sketcher.Constraint("Equal", 33, 35),
    Sketcher.Constraint("Equal", 35, 37),
    Sketcher.Constraint("Equal", 37, 39),
    Sketcher.Constraint("Equal", 39, 40),
    Sketcher.Constraint("Equal", 40, 42),
    Sketcher.Constraint("Equal", 42, 44),
    Sketcher.Constraint("Equal", 44, 46),
    Sketcher.Constraint("Equal", 46, 48),
    Sketcher.Constraint("Equal", 48, 50),
    Sketcher.Constraint("Equal", 50, 52),
    Sketcher.Constraint("Equal", 52, 54),
    Sketcher.Constraint("Equal", 54, 56),
    Sketcher.Constraint("Equal", 56, 58),
    Sketcher.Constraint("Equal", 58, 60),
    Sketcher.Constraint("Equal", 60, 62),
    Sketcher.Constraint("Horizontal", 7, 3, 9, 3),
    Sketcher.Constraint("Horizontal", 5, 3, 13, 3),
    Sketcher.Constraint("Horizontal", 11, 3, 17, 3),
    Sketcher.Constraint("Horizontal", 15, 3, 21, 3),
    Sketcher.Constraint("Horizontal", 19, 3, 25, 3),
    Sketcher.Constraint("Horizontal", 23, 3, 29, 3),
    Sketcher.Constraint("Horizontal", 31, 3, 35, 3),
    Sketcher.Constraint("Horizontal", 39, 3, 40, 3),
    Sketcher.Constraint("Horizontal", 37, 3, 42, 3),
    Sketcher.Constraint("Horizontal", 46, 3, 48, 3),
    Sketcher.Constraint("Horizontal", 44, 3, 50, 3),
    Sketcher.Constraint("Horizontal", 54, 3, 56, 3),
    Sketcher.Constraint("Horizontal", 52, 3, 58, 3),
    Sketcher.Constraint("Equal", 4, 10),
    Sketcher.Constraint("Equal", 14, 18),
    Sketcher.Constraint("Equal", 22, 26),
    Sketcher.Constraint("Equal", 30, 32),
    Sketcher.Constraint("Equal", 36, 43),
    Sketcher.Constraint("Equal", 47, 51),
    Sketcher.Constraint("Equal", 55, 59),
    Sketcher.Constraint("Radius", 1, Q("0.05 in")),
    Sketcher.Constraint("DistanceY", 2, 2, 2, 1, Q("0.5 in")),
    Sketcher.Constraint("DistanceX", 0, 1, 0, 2, Q("0.05 in")),
    Sketcher.Constraint("DistanceY", -1, 1, 0, 2, Q("0.8 in")),
    Sketcher.Constraint("DistanceX", -1, 1, 1, 3, Q("0.8125 in")),
    Sketcher.Constraint("DistanceX", -1, 1, 9, 3, Q("1.0625 in")),
    Sketcher.Constraint("DistanceX", -1, 1, 37, 3, Q("0.3125 in")),
    Sketcher.Constraint("DistanceX", -1, 1, 40, 3, Q("0.0625 in")),
    Sketcher.Constraint("DistanceX", -1, 1, 16, 2, Q("1.3125 in")),
    Sketcher.Constraint("DistanceX", 48, 1, -1, 1, Q("0.1875 in")),
    Sketcher.Constraint("DistanceX", -1, 1, 25, 3, Q("1.6625 in")),
    Sketcher.Constraint("DistanceX", 56, 3, -1, 1, Q("0.5375 in")),
    Sketcher.Constraint("DistanceY", 34, 2, 34, 1, Q("12.328026 mm")),
])
pocket4 = body.newObject("PartDesign::Pocket", "Pocket003")
pocket4.Profile = sketch7
pocket4.Length = Q("0.125 in")
pocket4.Reversed = True

# Sketch on XZ plane
sketch8 = body.newObject("Sketcher::SketchObject", "Sketch007")
sketch8.AttachmentSupport = (doc.getObject("XZ_Plane"), [""])
sketch8.MapMode = "FlatFace"
sketch8.AttachmentOffset = App.Placement(Vector(0, 0, 44.85), App.Rotation())
sketch8.addGeometry([
    Part.Circle(Vector(-16.9, 19.3, 0), Vector(0, 0, 1), 2.9),
    Part.Circle(Vector(-4.2, 19.3, 0), Vector(0, 0, 1), 2.9),
    Part.Circle(Vector(8.5, 19.3, 0), Vector(0, 0, 1), 2.9),
    Part.Circle(Vector(21.2, 19.3, 0), Vector(0, 0, 1), 2.5),
], False)
sketch8.addConstraint([
    Sketcher.Constraint("Equal", 0, 1),
    Sketcher.Constraint("Equal", 1, 2),
    Sketcher.Constraint("Horizontal", 0, 3, 1, 3),
    Sketcher.Constraint("Horizontal", 1, 3, 2, 3),
    Sketcher.Constraint("Horizontal", 2, 3, 3, 3),
    Sketcher.Constraint("Diameter", 3, Q("0.2 in")),
    Sketcher.Constraint("Diameter", 0, Q("0.23 in")),
    Sketcher.Constraint("DistanceX", 0, 3, 2, 3, Q("1 in")),
    Sketcher.Constraint("DistanceX", 1, 3, 3, 3, Q("1 in")),
    Sketcher.Constraint("DistanceX", 0, 3, 1, 3, Q("0.5 in")),
    Sketcher.Constraint("DistanceY", -1, 1, 0, 3, Q("0.76 in")),
    Sketcher.Constraint("DistanceX", 0, 3, -1, 1, Q("16.869128 mm")),
])
pocket5 = body.newObject("PartDesign::Pocket", "Pocket004")
pocket5.Profile = sketch8
pocket5.Length = Q("0.125 in")
doc.recompute()

fillet = body.newObject("PartDesign::Fillet", "Fillet")
fillet.Base = (pocket5, edges_at(pocket5, [
    (62.925, -36.64, 11.113),
    (54.715, -44.85, 11.113),
    (62.925, 104.965, 11.113),
    (54.715, 113.175, 11.113),
    (-26.14, 113.175, 11.113),
    (-34.35, 104.965, 11.113),
    (-34.35, -36.64, 11.113),
    (-26.14, -44.85, 11.113),
]))
fillet.Radius = Q("0.1 in")

# Sketch on XY plane
sketch9 = body.newObject("Sketcher::SketchObject", "Sketch008")
sketch9.AttachmentSupport = (doc.getObject("XY_Plane"), [""])
sketch9.MapMode = "FlatFace"
sketch9.addGeometry([
    Part.Circle(Vector(-5.8, 89.7, 0), Vector(0, 0, 1), 5.1),  # 0
    Part.Circle(Vector(-5.8, 89.7, 0), Vector(0, 0, 1), 1.6),  # 1
    Part.Circle(Vector(29.3, 89.7, 0), Vector(0, 0, 1), 5.1),  # 2
    Part.Circle(Vector(29.3, 89.7, 0), Vector(0, 0, 1), 1.6),  # 3
    Part.Circle(Vector(42, 10.9, 0), Vector(0, 0, 1), 5.1),  # 4
    Part.Circle(Vector(42, 10.9, 0), Vector(0, 0, 1), 1.6),  # 5
], False)
sketch9.addConstraint([
    Sketcher.Constraint("Coincident", 1, 3, 0, 3),
    Sketcher.Constraint("Coincident", 3, 3, 2, 3),
    Sketcher.Constraint("Coincident", 5, 3, 4, 3),
    Sketcher.Constraint("Equal", 0, 2),
    Sketcher.Constraint("Equal", 1, 3),
    Sketcher.Constraint("Equal", 2, 4),
    Sketcher.Constraint("Equal", 3, 5),
    Sketcher.Constraint("Horizontal", 1, 3, 2, 3),
    Sketcher.Constraint("Diameter", 0, Q("0.4 in")),
    Sketcher.Constraint("Diameter", 1, Q("0.125 in")),
    Sketcher.Constraint("DistanceX", 2, 3, 4, 3, Q("0.5 in")),
    Sketcher.Constraint("DistanceY", 4, 3, 2, 3, Q("3.1 in")),
    Sketcher.Constraint("DistanceX", 0, 3, -1, 1, Q("5.775 mm")),
    Sketcher.Constraint("DistanceY", -1, 1, 0, 3, Q("89.68 mm")),
    Sketcher.Constraint("DistanceX", -1, 1, 2, 3, Q("29.27 mm")),
])
pad4 = body.newObject("PartDesign::Pad", "Pad003")
pad4.Profile = sketch9
pad4.Length = Q("1 in")

doc.recompute()
